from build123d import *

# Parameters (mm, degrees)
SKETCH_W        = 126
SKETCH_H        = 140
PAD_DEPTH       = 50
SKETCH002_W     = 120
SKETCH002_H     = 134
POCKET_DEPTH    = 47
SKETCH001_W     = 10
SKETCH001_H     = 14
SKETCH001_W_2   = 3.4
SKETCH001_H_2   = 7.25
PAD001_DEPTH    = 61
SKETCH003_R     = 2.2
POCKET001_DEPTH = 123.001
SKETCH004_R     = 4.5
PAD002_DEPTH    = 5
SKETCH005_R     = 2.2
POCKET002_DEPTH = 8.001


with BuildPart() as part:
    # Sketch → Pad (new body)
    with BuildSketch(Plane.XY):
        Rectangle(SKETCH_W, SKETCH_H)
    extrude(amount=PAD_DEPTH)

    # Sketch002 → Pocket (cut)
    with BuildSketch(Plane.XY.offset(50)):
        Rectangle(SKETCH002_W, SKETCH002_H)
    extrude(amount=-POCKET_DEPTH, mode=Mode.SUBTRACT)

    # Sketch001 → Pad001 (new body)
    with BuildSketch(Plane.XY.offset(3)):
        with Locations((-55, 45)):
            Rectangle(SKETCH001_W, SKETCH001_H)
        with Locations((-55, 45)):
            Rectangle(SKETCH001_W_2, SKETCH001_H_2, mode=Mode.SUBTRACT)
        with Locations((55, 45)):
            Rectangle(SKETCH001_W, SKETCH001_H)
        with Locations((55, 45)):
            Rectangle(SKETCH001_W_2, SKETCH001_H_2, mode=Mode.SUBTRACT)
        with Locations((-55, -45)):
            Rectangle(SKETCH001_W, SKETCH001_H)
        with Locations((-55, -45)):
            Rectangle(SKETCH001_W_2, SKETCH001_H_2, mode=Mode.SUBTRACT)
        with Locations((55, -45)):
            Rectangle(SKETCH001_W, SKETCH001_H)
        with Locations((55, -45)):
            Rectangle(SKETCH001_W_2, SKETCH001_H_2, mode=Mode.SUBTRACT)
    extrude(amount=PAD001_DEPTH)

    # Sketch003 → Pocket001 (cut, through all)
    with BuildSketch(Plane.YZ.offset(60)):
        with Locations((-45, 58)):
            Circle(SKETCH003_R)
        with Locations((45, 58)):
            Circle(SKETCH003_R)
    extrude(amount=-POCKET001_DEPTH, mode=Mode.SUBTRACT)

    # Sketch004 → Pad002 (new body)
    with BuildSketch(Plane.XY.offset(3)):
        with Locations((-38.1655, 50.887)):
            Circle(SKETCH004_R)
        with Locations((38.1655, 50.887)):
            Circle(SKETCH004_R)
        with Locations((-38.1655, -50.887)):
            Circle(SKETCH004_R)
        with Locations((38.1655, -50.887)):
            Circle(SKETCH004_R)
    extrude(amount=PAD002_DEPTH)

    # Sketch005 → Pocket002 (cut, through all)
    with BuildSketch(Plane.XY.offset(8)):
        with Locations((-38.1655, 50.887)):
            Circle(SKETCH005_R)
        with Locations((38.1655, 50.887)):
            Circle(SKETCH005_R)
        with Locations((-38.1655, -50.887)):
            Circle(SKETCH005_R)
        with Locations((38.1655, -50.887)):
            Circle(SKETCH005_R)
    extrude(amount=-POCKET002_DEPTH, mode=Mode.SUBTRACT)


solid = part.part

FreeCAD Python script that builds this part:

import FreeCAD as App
import Part
import Sketcher
from FreeCAD import Vector
Q = App.Units.Quantity

doc = App.newDocument("Part")
body = doc.addObject("PartDesign::Body", "Body")

sketch1 = body.newObject("Sketcher::SketchObject", "Sketch")
sketch1.AttachmentSupport = (doc.getObject("XY_Plane"), [""])
sketch1.MapMode = "FlatFace"
sketch1.addGeometry([
    Part.LineSegment(Vector(-63, 70, 0), Vector(-63, -70, 0)),
    Part.LineSegment(Vector(-63, -70, 0), Vector(63, -70, 0)),
    Part.LineSegment(Vector(63, -70, 0), Vector(63, 70, 0)),
    Part.LineSegment(Vector(63, 70, 0), Vector(-63, 70, 0)),
], False)
sketch1.addConstraint([
    Sketcher.Constraint("Coincident", 0, 2, 1, 1),
    Sketcher.Constraint("Coincident", 1, 2, 2, 1),
    Sketcher.Constraint("Coincident", 2, 2, 3, 1),
    Sketcher.Constraint("Coincident", 3, 2, 0, 1),
    Sketcher.Constraint("Vertical", 0),
    Sketcher.Constraint("Horizontal", 1),
    Sketcher.Constraint("Vertical", 2),
    Sketcher.Constraint("Horizontal", 3),
    Sketcher.Constraint("Symmetric", 0, 2, 2, 2, -1, 1),
    Sketcher.Constraint("DistanceX", 1, 1, 1, 2, Q("126 mm")),
    Sketcher.Constraint("DistanceY", 0, 2, 0, 1, Q("140 mm")),
])
pad1 = body.newObject("PartDesign::Pad", "Pad")
pad1.Profile = sketch1
pad1.Length = 50

sketch2 = body.newObject("Sketcher::SketchObject", "Sketch001")
sketch2.AttachmentSupport = (doc.getObject("XY_Plane"), [""])
sketch2.MapMode = "FlatFace"
sketch2.AttachmentOffset = App.Placement(Vector(0, 0, 50), App.Rotation())
sketch2.addGeometry([
    Part.LineSegment(Vector(-60, 67, 0), Vector(-60, -67, 0)),
    Part.LineSegment(Vector(-60, -67, 0), Vector(60, -67, 0)),
    Part.LineSegment(Vector(60, -67, 0), Vector(60, 67, 0)),
    Part.LineSegment(Vector(60, 67, 0), Vector(-60, 67, 0)),
], False)
sketch2.addConstraint([
    Sketcher.Constraint("Coincident", 0, 2, 1, 1),
    Sketcher.Constraint("Coincident", 1, 2, 2, 1),
    Sketcher.Constraint("Coincident", 2, 2, 3, 1),
    Sketcher.Constraint("Coincident", 3, 2, 0, 1),
    Sketcher.Constraint("Vertical", 0),
    Sketcher.Constraint("Horizontal", 1),
    Sketcher.Constraint("Vertical", 2),
    Sketcher.Constraint("Horizontal", 3),
    Sketcher.Constraint("Symmetric", 0, 2, 2, 2, -1, 1),
    Sketcher.Constraint("DistanceX", 1, 1, 1, 2, Q("120 mm")),
    Sketcher.Constraint("DistanceY", 0, 2, 0, 1, Q("134 mm")),
])
pocket1 = body.newObject("PartDesign::Pocket", "Pocket")
pocket1.Profile = sketch2
pocket1.Length = 47

sketch3 = body.newObject("Sketcher::SketchObject", "Sketch002")
sketch3.AttachmentSupport = (doc.getObject("XY_Plane"), [""])
sketch3.MapMode = "FlatFace"
sketch3.AttachmentOffset = App.Placement(Vector(0, 0, 3), App.Rotation())
sketch3.addGeometry([
    Part.LineSegment(Vector(-60, 52, 0), Vector(-60, 38, 0)),
    Part.LineSegment(Vector(-60, 38, 0), Vector(-50, 38, 0)),
    Part.LineSegment(Vector(-50, 38, 0), Vector(-50, 52, 0)),
    Part.LineSegment(Vector(-50, 52, 0), Vector(-60, 52, 0)),
    Part.LineSegment(Vector(-53.3, 41.375, 0), Vector(-56.7, 41.375, 0)),
    Part.LineSegment(Vector(-56.7, 41.375, 0), Vector(-56.7, 48.625, 0)),
    Part.LineSegment(Vector(-56.7, 48.625, 0), Vector(-53.3, 48.625, 0)),
    Part.LineSegment(Vector(-53.3, 48.625, 0), Vector(-53.3, 41.375, 0)),
    Part.LineSegment(Vector(50, 52, 0), Vector(50, 38, 0)),
    Part.LineSegment(Vector(50, 38, 0), Vector(60, 38, 0)),
    Part.LineSegment(Vector(60, 38, 0), Vector(60, 52, 0)),
    Part.LineSegment(Vector(60, 52, 0), Vector(50, 52, 0)),
    Part.LineSegment(Vector(56.7, 41.375, 0), Vector(53.3, 41.375, 0)),
    Part.LineSegment(Vector(53.3, 41.375, 0), Vector(53.3, 48.625, 0)),
    Part.LineSegment(Vector(53.3, 48.625, 0), Vector(56.7, 48.625, 0)),
    Part.LineSegment(Vector(56.7, 48.625, 0), Vector(56.7, 41.375, 0)),
    Part.LineSegment(Vector(-60, -38, 0), Vector(-60, -52, 0)),
    Part.LineSegment(Vector(-60, -52, 0), Vector(-50, -52, 0)),
    Part.LineSegment(Vector(-50, -52, 0), Vector(-50, -38, 0)),
    Part.LineSegment(Vector(-50, -38, 0), Vector(-60, -38, 0)),
    Part.LineSegment(Vector(-53.3, -48.625, 0), Vector(-56.7, -48.625, 0)),
    Part.LineSegment(Vector(-56.7, -48.625, 0), Vector(-56.7, -41.375, 0)),
    Part.LineSegment(Vector(-56.7, -41.375, 0), Vector(-53.3, -41.375, 0)),
    Part.LineSegment(Vector(-53.3, -41.375, 0), Vector(-53.3, -48.625, 0)),
    Part.LineSegment(Vector(50, -38, 0), Vector(50, -52, 0)),
    Part.LineSegment(Vector(50, -52, 0), Vector(60, -52, 0)),
    Part.LineSegment(Vector(60, -52, 0), Vector(60, -38, 0)),
    Part.LineSegment(Vector(60, -38, 0), Vector(50, -38, 0)),
    Part.LineSegment(Vector(56.7, -48.625, 0), Vector(53.3, -48.625, 0)),
    Part.LineSegment(Vector(53.3, -48.625, 0), Vector(53.3, -41.375, 0)),
    Part.LineSegment(Vector(53.3, -41.375, 0), Vector(56.7, -41.375, 0)),
    Part.LineSegment(Vector(56.7, -41.375, 0), Vector(56.7, -48.625, 0)),
], False)
sketch3.addConstraint([
    Sketcher.Constraint("Coincident", 0, 2, 1, 1),
    Sketcher.Constraint("Coincident", 1, 2, 2, 1),
    Sketcher.Constraint("Coincident", 2, 2, 3, 1),
    Sketcher.Constraint("Coincident", 3, 2, 0, 1),
    Sketcher.Constraint("Coincident", 4, 2, 5, 1),
    Sketcher.Constraint("Coincident", 5, 2, 6, 1),
    Sketcher.Constraint("Coincident", 6, 2, 7, 1),
    Sketcher.Constraint("Coincident", 7, 2, 4, 1),
    Sketcher.Constraint("Coincident", 8, 2, 9, 1),
    Sketcher.Constraint("Coincident", 9, 2, 10, 1),
    Sketcher.Constraint("Coincident", 10, 2, 11, 1),
    Sketcher.Constraint("Coincident", 11, 2, 8, 1),
    Sketcher.Constraint("Coincident", 12, 2, 13, 1),
    Sketcher.Constraint("Coincident", 13, 2, 14, 1),
    Sketcher.Constraint("Coincident", 14, 2, 15, 1),
    Sketcher.Constraint("Coincident", 15, 2, 12, 1),
    Sketcher.Constraint("Coincident", 16, 2, 17, 1),
    Sketcher.Constraint("Coincident", 17, 2, 18, 1),
    Sketcher.Constraint("Coincident", 18, 2, 19, 1),
    Sketcher.Constraint("Coincident", 19, 2, 16, 1),
    Sketcher.Constraint("Coincident", 20, 2, 21, 1),
    Sketcher.Constraint("Coincident", 21, 2, 22, 1),
    Sketcher.Constraint("Coincident", 22, 2, 23, 1),
    Sketcher.Constraint("Coincident", 23, 2, 20, 1),
    Sketcher.Constraint("Coincident", 24, 2, 25, 1),
    Sketcher.Constraint("Coincident", 25, 2, 26, 1),
    Sketcher.Constraint("Coincident", 26, 2, 27, 1),
    Sketcher.Constraint("Coincident", 27, 2, 24, 1),
    Sketcher.Constraint("Coincident", 28, 2, 29, 1),
    Sketcher.Constraint("Coincident", 29, 2, 30, 1),
    Sketcher.Constraint("Coincident", 30, 2, 31, 1),
    Sketcher.Constraint("Coincident", 31, 2, 28, 1),
    Sketcher.Constraint("Vertical", 0),
    Sketcher.Constraint("Horizontal", 1),
    Sketcher.Constraint("Vertical", 2),
    Sketcher.Constraint("Horizontal", 3),
    Sketcher.Constraint("Horizontal", 4),
    Sketcher.Constraint("Vertical", 5),
    Sketcher.Constraint("Horizontal", 6),
    Sketcher.Constraint("Vertical", 7),
    Sketcher.Constraint("Vertical", 8),
    Sketcher.Constraint("Horizontal", 9),
    Sketcher.Constraint("Vertical", 10),
    Sketcher.Constraint("Horizontal", 11),
    Sketcher.Constraint("Horizontal", 12),
    Sketcher.Constraint("Vertical", 13),
    Sketcher.Constraint("Horizontal", 14),
    Sketcher.Constraint("Vertical", 15),
    Sketcher.Constraint("Vertical", 16),
    Sketcher.Constraint("Horizontal", 17),
    Sketcher.Constraint("Vertical", 18),
    Sketcher.Constraint("Horizontal", 19),
    Sketcher.Constraint("Horizontal", 20),
    Sketcher.Constraint("Vertical", 21),
    Sketcher.Constraint("Horizontal", 22),
    Sketcher.Constraint("Vertical", 23),
    Sketcher.Constraint("Vertical", 24),
    Sketcher.Constraint("Horizontal", 25),
    Sketcher.Constraint("Vertical", 26),
    Sketcher.Constraint("Horizontal", 27),
    Sketcher.Constraint("Horizontal", 28),
    Sketcher.Constraint("Vertical", 29),
    Sketcher.Constraint("Horizontal", 30),
    Sketcher.Constraint("Vertical", 31),
    Sketcher.Constraint("Symmetric", 10, 2, 16, 2, -1, 1),
    Sketcher.Constraint("Symmetric", 8, 2, 18, 2, -1, 1),
    Sketcher.Constraint("Symmetric", 14, 2, 20, 2, -1, 1),
    Sketcher.Constraint("Symmetric", 12, 2, 22, 2, -1, 1),
    Sketcher.Constraint("Symmetric", 2, 2, 24, 2, -1, 1),
    Sketcher.Constraint("Symmetric", 0, 2, 26, 2, -1, 1),
    Sketcher.Constraint("Symmetric", 6, 2, 28, 2, -1, 1),
    Sketcher.Constraint("Symmetric", 4, 2, 30, 2, -1, 1),
    Sketcher.Constraint("Symmetric", 1, 2, 8, 2, -2),
    Sketcher.Constraint("Symmetric", 3, 2, 10, 2, -2),
    Sketcher.Constraint("Symmetric", 7, 2, 12, 2, -2),
    Sketcher.Constraint("Symmetric", 5, 2, 14, 2, -2),
    Sketcher.Constraint("DistanceX", 1, 1, 1, 2, Q("10 mm")),
    Sketcher.Constraint("DistanceY", 0, 2, 0, 1, Q("14 mm")),
    Sketcher.Constraint("DistanceX", 4, 2, 4, 1, Q("3.4 mm")),
    Sketcher.Constraint("DistanceX", 0, 2, -1, 1, Q("60 mm")),
    Sketcher.Constraint("DistanceY", -1, 1, 0, 2, Q("38 mm")),
    Sketcher.Constraint("DistanceY", 5, 1, 5, 2, Q("7.25 mm")),
    Sketcher.Constraint("DistanceX", 4, 2, -1, 1, Q("56.7 mm")),
    Sketcher.Constraint("DistanceY", -1, 1, 4, 2, Q("41.375 mm")),
])
pad2 = body.newObject("PartDesign::Pad", "Pad001")
pad2.Profile = sketch3
pad2.Length = 61

sketch4 = body.newObject("Sketcher::SketchObject", "Sketch003")
sketch4.AttachmentSupport = (doc.getObject("YZ_Plane"), [""])
sketch4.MapMode = "FlatFace"
sketch4.AttachmentOffset = App.Placement(Vector(0, 0, 60), App.Rotation())
sketch4.addGeometry([
    Part.Circle(Vector(-45, 58, 0), Vector(0, 0, 1), 2.2),
    Part.Circle(Vector(45, 58, 0), Vector(0, 0, 1), 2.2),
], False)
sketch4.addConstraint([
    Sketcher.Constraint("Equal", 0, 1),
    Sketcher.Constraint("Symmetric", 0, 3, 1, 3, -2),
    Sketcher.Constraint("Diameter", 0, Q("4.4 mm")),
    Sketcher.Constraint("DistanceX", 0, 3, -1, 1, Q("45 mm")),
    Sketcher.Constraint("DistanceY", -1, 1, 0, 3, Q("58 mm")),
])
pocket2 = body.newObject("PartDesign::Pocket", "Pocket001")
pocket2.Profile = sketch4
pocket2.Type = "ThroughAll"

sketch5 = body.newObject("Sketcher::SketchObject", "Sketch004")
sketch5.AttachmentSupport = (doc.getObject("XY_Plane"), [""])
sketch5.MapMode = "FlatFace"
sketch5.AttachmentOffset = App.Placement(Vector(0, 0, 3), App.Rotation())
sketch5.addGeometry([
    Part.Circle(Vector(-38.1655, 50.887, 0), Vector(0, 0, 1), 4.5),
    Part.Circle(Vector(38.1655, 50.887, 0), Vector(0, 0, 1), 4.5),
    Part.Circle(Vector(-38.1655, -50.887, 0), Vector(0, 0, 1), 4.5),
    Part.Circle(Vector(38.1655, -50.887, 0), Vector(0, 0, 1), 4.5),
], False)
sketch5.addConstraint([
    Sketcher.Constraint("Equal", 0, 1),
    Sketcher.Constraint("Equal", 1, 2),
    Sketcher.Constraint("Equal", 2, 3),
    Sketcher.Constraint("Symmetric", 1, 3, 2, 3, -1, 1),
    Sketcher.Constraint("Symmetric", 0, 3, 3, 3, -1, 1),
    Sketcher.Constraint("Symmetric", 0, 3, 1, 3, -2),
    Sketcher.Constraint("Diameter", 0, Q("9 mm")),
    Sketcher.Constraint("DistanceY", -1, 1, 0, 3, Q("50.887 mm")),
    Sketcher.Constraint("DistanceX", 0, 3, 1, 3, Q("76.331 mm")),
])
pad3 = body.newObject("PartDesign::Pad", "Pad002")
pad3.Profile = sketch5
pad3.Length = 5

sketch6 = body.newObject("Sketcher::SketchObject", "Sketch005")
sketch6.AttachmentSupport = (doc.getObject("XY_Plane"), [""])
sketch6.MapMode = "FlatFace"
sketch6.AttachmentOffset = App.Placement(Vector(0, 0, 8), App.Rotation())
sketch6.addGeometry([
    Part.Circle(Vector(-38.1655, 50.887, 0), Vector(0, 0, 1), 2.2),
    Part.Circle(Vector(38.1655, 50.887, 0), Vector(0, 0, 1), 2.2),
    Part.Circle(Vector(-38.1655, -50.887, 0), Vector(0, 0, 1), 2.2),
    Part.Circle(Vector(38.1655, -50.887, 0), Vector(0, 0, 1), 2.2),
], False)
sketch6.addConstraint([
    Sketcher.Constraint("Equal", 0, 1),
    Sketcher.Constraint("Equal", 1, 2),
    Sketcher.Constraint("Equal", 2, 3),
    Sketcher.Constraint("Symmetric", 1, 3, 2, 3, -1, 1),
    Sketcher.Constraint("Symmetric", 0, 3, 3, 3, -1, 1),
    Sketcher.Constraint("Symmetric", 0, 3, 1, 3, -2),
    Sketcher.Constraint("Diameter", 0, Q("4.4 mm")),
    Sketcher.Constraint("DistanceY", -1, 1, 0, 3, Q("50.887 mm")),
    Sketcher.Constraint("DistanceX", 0, 3, 1, 3, Q("76.331 mm")),
])
pocket3 = body.newObject("PartDesign::Pocket", "Pocket002")
pocket3.Profile = sketch6
pocket3.Type = "ThroughAll"

doc.recompute()
